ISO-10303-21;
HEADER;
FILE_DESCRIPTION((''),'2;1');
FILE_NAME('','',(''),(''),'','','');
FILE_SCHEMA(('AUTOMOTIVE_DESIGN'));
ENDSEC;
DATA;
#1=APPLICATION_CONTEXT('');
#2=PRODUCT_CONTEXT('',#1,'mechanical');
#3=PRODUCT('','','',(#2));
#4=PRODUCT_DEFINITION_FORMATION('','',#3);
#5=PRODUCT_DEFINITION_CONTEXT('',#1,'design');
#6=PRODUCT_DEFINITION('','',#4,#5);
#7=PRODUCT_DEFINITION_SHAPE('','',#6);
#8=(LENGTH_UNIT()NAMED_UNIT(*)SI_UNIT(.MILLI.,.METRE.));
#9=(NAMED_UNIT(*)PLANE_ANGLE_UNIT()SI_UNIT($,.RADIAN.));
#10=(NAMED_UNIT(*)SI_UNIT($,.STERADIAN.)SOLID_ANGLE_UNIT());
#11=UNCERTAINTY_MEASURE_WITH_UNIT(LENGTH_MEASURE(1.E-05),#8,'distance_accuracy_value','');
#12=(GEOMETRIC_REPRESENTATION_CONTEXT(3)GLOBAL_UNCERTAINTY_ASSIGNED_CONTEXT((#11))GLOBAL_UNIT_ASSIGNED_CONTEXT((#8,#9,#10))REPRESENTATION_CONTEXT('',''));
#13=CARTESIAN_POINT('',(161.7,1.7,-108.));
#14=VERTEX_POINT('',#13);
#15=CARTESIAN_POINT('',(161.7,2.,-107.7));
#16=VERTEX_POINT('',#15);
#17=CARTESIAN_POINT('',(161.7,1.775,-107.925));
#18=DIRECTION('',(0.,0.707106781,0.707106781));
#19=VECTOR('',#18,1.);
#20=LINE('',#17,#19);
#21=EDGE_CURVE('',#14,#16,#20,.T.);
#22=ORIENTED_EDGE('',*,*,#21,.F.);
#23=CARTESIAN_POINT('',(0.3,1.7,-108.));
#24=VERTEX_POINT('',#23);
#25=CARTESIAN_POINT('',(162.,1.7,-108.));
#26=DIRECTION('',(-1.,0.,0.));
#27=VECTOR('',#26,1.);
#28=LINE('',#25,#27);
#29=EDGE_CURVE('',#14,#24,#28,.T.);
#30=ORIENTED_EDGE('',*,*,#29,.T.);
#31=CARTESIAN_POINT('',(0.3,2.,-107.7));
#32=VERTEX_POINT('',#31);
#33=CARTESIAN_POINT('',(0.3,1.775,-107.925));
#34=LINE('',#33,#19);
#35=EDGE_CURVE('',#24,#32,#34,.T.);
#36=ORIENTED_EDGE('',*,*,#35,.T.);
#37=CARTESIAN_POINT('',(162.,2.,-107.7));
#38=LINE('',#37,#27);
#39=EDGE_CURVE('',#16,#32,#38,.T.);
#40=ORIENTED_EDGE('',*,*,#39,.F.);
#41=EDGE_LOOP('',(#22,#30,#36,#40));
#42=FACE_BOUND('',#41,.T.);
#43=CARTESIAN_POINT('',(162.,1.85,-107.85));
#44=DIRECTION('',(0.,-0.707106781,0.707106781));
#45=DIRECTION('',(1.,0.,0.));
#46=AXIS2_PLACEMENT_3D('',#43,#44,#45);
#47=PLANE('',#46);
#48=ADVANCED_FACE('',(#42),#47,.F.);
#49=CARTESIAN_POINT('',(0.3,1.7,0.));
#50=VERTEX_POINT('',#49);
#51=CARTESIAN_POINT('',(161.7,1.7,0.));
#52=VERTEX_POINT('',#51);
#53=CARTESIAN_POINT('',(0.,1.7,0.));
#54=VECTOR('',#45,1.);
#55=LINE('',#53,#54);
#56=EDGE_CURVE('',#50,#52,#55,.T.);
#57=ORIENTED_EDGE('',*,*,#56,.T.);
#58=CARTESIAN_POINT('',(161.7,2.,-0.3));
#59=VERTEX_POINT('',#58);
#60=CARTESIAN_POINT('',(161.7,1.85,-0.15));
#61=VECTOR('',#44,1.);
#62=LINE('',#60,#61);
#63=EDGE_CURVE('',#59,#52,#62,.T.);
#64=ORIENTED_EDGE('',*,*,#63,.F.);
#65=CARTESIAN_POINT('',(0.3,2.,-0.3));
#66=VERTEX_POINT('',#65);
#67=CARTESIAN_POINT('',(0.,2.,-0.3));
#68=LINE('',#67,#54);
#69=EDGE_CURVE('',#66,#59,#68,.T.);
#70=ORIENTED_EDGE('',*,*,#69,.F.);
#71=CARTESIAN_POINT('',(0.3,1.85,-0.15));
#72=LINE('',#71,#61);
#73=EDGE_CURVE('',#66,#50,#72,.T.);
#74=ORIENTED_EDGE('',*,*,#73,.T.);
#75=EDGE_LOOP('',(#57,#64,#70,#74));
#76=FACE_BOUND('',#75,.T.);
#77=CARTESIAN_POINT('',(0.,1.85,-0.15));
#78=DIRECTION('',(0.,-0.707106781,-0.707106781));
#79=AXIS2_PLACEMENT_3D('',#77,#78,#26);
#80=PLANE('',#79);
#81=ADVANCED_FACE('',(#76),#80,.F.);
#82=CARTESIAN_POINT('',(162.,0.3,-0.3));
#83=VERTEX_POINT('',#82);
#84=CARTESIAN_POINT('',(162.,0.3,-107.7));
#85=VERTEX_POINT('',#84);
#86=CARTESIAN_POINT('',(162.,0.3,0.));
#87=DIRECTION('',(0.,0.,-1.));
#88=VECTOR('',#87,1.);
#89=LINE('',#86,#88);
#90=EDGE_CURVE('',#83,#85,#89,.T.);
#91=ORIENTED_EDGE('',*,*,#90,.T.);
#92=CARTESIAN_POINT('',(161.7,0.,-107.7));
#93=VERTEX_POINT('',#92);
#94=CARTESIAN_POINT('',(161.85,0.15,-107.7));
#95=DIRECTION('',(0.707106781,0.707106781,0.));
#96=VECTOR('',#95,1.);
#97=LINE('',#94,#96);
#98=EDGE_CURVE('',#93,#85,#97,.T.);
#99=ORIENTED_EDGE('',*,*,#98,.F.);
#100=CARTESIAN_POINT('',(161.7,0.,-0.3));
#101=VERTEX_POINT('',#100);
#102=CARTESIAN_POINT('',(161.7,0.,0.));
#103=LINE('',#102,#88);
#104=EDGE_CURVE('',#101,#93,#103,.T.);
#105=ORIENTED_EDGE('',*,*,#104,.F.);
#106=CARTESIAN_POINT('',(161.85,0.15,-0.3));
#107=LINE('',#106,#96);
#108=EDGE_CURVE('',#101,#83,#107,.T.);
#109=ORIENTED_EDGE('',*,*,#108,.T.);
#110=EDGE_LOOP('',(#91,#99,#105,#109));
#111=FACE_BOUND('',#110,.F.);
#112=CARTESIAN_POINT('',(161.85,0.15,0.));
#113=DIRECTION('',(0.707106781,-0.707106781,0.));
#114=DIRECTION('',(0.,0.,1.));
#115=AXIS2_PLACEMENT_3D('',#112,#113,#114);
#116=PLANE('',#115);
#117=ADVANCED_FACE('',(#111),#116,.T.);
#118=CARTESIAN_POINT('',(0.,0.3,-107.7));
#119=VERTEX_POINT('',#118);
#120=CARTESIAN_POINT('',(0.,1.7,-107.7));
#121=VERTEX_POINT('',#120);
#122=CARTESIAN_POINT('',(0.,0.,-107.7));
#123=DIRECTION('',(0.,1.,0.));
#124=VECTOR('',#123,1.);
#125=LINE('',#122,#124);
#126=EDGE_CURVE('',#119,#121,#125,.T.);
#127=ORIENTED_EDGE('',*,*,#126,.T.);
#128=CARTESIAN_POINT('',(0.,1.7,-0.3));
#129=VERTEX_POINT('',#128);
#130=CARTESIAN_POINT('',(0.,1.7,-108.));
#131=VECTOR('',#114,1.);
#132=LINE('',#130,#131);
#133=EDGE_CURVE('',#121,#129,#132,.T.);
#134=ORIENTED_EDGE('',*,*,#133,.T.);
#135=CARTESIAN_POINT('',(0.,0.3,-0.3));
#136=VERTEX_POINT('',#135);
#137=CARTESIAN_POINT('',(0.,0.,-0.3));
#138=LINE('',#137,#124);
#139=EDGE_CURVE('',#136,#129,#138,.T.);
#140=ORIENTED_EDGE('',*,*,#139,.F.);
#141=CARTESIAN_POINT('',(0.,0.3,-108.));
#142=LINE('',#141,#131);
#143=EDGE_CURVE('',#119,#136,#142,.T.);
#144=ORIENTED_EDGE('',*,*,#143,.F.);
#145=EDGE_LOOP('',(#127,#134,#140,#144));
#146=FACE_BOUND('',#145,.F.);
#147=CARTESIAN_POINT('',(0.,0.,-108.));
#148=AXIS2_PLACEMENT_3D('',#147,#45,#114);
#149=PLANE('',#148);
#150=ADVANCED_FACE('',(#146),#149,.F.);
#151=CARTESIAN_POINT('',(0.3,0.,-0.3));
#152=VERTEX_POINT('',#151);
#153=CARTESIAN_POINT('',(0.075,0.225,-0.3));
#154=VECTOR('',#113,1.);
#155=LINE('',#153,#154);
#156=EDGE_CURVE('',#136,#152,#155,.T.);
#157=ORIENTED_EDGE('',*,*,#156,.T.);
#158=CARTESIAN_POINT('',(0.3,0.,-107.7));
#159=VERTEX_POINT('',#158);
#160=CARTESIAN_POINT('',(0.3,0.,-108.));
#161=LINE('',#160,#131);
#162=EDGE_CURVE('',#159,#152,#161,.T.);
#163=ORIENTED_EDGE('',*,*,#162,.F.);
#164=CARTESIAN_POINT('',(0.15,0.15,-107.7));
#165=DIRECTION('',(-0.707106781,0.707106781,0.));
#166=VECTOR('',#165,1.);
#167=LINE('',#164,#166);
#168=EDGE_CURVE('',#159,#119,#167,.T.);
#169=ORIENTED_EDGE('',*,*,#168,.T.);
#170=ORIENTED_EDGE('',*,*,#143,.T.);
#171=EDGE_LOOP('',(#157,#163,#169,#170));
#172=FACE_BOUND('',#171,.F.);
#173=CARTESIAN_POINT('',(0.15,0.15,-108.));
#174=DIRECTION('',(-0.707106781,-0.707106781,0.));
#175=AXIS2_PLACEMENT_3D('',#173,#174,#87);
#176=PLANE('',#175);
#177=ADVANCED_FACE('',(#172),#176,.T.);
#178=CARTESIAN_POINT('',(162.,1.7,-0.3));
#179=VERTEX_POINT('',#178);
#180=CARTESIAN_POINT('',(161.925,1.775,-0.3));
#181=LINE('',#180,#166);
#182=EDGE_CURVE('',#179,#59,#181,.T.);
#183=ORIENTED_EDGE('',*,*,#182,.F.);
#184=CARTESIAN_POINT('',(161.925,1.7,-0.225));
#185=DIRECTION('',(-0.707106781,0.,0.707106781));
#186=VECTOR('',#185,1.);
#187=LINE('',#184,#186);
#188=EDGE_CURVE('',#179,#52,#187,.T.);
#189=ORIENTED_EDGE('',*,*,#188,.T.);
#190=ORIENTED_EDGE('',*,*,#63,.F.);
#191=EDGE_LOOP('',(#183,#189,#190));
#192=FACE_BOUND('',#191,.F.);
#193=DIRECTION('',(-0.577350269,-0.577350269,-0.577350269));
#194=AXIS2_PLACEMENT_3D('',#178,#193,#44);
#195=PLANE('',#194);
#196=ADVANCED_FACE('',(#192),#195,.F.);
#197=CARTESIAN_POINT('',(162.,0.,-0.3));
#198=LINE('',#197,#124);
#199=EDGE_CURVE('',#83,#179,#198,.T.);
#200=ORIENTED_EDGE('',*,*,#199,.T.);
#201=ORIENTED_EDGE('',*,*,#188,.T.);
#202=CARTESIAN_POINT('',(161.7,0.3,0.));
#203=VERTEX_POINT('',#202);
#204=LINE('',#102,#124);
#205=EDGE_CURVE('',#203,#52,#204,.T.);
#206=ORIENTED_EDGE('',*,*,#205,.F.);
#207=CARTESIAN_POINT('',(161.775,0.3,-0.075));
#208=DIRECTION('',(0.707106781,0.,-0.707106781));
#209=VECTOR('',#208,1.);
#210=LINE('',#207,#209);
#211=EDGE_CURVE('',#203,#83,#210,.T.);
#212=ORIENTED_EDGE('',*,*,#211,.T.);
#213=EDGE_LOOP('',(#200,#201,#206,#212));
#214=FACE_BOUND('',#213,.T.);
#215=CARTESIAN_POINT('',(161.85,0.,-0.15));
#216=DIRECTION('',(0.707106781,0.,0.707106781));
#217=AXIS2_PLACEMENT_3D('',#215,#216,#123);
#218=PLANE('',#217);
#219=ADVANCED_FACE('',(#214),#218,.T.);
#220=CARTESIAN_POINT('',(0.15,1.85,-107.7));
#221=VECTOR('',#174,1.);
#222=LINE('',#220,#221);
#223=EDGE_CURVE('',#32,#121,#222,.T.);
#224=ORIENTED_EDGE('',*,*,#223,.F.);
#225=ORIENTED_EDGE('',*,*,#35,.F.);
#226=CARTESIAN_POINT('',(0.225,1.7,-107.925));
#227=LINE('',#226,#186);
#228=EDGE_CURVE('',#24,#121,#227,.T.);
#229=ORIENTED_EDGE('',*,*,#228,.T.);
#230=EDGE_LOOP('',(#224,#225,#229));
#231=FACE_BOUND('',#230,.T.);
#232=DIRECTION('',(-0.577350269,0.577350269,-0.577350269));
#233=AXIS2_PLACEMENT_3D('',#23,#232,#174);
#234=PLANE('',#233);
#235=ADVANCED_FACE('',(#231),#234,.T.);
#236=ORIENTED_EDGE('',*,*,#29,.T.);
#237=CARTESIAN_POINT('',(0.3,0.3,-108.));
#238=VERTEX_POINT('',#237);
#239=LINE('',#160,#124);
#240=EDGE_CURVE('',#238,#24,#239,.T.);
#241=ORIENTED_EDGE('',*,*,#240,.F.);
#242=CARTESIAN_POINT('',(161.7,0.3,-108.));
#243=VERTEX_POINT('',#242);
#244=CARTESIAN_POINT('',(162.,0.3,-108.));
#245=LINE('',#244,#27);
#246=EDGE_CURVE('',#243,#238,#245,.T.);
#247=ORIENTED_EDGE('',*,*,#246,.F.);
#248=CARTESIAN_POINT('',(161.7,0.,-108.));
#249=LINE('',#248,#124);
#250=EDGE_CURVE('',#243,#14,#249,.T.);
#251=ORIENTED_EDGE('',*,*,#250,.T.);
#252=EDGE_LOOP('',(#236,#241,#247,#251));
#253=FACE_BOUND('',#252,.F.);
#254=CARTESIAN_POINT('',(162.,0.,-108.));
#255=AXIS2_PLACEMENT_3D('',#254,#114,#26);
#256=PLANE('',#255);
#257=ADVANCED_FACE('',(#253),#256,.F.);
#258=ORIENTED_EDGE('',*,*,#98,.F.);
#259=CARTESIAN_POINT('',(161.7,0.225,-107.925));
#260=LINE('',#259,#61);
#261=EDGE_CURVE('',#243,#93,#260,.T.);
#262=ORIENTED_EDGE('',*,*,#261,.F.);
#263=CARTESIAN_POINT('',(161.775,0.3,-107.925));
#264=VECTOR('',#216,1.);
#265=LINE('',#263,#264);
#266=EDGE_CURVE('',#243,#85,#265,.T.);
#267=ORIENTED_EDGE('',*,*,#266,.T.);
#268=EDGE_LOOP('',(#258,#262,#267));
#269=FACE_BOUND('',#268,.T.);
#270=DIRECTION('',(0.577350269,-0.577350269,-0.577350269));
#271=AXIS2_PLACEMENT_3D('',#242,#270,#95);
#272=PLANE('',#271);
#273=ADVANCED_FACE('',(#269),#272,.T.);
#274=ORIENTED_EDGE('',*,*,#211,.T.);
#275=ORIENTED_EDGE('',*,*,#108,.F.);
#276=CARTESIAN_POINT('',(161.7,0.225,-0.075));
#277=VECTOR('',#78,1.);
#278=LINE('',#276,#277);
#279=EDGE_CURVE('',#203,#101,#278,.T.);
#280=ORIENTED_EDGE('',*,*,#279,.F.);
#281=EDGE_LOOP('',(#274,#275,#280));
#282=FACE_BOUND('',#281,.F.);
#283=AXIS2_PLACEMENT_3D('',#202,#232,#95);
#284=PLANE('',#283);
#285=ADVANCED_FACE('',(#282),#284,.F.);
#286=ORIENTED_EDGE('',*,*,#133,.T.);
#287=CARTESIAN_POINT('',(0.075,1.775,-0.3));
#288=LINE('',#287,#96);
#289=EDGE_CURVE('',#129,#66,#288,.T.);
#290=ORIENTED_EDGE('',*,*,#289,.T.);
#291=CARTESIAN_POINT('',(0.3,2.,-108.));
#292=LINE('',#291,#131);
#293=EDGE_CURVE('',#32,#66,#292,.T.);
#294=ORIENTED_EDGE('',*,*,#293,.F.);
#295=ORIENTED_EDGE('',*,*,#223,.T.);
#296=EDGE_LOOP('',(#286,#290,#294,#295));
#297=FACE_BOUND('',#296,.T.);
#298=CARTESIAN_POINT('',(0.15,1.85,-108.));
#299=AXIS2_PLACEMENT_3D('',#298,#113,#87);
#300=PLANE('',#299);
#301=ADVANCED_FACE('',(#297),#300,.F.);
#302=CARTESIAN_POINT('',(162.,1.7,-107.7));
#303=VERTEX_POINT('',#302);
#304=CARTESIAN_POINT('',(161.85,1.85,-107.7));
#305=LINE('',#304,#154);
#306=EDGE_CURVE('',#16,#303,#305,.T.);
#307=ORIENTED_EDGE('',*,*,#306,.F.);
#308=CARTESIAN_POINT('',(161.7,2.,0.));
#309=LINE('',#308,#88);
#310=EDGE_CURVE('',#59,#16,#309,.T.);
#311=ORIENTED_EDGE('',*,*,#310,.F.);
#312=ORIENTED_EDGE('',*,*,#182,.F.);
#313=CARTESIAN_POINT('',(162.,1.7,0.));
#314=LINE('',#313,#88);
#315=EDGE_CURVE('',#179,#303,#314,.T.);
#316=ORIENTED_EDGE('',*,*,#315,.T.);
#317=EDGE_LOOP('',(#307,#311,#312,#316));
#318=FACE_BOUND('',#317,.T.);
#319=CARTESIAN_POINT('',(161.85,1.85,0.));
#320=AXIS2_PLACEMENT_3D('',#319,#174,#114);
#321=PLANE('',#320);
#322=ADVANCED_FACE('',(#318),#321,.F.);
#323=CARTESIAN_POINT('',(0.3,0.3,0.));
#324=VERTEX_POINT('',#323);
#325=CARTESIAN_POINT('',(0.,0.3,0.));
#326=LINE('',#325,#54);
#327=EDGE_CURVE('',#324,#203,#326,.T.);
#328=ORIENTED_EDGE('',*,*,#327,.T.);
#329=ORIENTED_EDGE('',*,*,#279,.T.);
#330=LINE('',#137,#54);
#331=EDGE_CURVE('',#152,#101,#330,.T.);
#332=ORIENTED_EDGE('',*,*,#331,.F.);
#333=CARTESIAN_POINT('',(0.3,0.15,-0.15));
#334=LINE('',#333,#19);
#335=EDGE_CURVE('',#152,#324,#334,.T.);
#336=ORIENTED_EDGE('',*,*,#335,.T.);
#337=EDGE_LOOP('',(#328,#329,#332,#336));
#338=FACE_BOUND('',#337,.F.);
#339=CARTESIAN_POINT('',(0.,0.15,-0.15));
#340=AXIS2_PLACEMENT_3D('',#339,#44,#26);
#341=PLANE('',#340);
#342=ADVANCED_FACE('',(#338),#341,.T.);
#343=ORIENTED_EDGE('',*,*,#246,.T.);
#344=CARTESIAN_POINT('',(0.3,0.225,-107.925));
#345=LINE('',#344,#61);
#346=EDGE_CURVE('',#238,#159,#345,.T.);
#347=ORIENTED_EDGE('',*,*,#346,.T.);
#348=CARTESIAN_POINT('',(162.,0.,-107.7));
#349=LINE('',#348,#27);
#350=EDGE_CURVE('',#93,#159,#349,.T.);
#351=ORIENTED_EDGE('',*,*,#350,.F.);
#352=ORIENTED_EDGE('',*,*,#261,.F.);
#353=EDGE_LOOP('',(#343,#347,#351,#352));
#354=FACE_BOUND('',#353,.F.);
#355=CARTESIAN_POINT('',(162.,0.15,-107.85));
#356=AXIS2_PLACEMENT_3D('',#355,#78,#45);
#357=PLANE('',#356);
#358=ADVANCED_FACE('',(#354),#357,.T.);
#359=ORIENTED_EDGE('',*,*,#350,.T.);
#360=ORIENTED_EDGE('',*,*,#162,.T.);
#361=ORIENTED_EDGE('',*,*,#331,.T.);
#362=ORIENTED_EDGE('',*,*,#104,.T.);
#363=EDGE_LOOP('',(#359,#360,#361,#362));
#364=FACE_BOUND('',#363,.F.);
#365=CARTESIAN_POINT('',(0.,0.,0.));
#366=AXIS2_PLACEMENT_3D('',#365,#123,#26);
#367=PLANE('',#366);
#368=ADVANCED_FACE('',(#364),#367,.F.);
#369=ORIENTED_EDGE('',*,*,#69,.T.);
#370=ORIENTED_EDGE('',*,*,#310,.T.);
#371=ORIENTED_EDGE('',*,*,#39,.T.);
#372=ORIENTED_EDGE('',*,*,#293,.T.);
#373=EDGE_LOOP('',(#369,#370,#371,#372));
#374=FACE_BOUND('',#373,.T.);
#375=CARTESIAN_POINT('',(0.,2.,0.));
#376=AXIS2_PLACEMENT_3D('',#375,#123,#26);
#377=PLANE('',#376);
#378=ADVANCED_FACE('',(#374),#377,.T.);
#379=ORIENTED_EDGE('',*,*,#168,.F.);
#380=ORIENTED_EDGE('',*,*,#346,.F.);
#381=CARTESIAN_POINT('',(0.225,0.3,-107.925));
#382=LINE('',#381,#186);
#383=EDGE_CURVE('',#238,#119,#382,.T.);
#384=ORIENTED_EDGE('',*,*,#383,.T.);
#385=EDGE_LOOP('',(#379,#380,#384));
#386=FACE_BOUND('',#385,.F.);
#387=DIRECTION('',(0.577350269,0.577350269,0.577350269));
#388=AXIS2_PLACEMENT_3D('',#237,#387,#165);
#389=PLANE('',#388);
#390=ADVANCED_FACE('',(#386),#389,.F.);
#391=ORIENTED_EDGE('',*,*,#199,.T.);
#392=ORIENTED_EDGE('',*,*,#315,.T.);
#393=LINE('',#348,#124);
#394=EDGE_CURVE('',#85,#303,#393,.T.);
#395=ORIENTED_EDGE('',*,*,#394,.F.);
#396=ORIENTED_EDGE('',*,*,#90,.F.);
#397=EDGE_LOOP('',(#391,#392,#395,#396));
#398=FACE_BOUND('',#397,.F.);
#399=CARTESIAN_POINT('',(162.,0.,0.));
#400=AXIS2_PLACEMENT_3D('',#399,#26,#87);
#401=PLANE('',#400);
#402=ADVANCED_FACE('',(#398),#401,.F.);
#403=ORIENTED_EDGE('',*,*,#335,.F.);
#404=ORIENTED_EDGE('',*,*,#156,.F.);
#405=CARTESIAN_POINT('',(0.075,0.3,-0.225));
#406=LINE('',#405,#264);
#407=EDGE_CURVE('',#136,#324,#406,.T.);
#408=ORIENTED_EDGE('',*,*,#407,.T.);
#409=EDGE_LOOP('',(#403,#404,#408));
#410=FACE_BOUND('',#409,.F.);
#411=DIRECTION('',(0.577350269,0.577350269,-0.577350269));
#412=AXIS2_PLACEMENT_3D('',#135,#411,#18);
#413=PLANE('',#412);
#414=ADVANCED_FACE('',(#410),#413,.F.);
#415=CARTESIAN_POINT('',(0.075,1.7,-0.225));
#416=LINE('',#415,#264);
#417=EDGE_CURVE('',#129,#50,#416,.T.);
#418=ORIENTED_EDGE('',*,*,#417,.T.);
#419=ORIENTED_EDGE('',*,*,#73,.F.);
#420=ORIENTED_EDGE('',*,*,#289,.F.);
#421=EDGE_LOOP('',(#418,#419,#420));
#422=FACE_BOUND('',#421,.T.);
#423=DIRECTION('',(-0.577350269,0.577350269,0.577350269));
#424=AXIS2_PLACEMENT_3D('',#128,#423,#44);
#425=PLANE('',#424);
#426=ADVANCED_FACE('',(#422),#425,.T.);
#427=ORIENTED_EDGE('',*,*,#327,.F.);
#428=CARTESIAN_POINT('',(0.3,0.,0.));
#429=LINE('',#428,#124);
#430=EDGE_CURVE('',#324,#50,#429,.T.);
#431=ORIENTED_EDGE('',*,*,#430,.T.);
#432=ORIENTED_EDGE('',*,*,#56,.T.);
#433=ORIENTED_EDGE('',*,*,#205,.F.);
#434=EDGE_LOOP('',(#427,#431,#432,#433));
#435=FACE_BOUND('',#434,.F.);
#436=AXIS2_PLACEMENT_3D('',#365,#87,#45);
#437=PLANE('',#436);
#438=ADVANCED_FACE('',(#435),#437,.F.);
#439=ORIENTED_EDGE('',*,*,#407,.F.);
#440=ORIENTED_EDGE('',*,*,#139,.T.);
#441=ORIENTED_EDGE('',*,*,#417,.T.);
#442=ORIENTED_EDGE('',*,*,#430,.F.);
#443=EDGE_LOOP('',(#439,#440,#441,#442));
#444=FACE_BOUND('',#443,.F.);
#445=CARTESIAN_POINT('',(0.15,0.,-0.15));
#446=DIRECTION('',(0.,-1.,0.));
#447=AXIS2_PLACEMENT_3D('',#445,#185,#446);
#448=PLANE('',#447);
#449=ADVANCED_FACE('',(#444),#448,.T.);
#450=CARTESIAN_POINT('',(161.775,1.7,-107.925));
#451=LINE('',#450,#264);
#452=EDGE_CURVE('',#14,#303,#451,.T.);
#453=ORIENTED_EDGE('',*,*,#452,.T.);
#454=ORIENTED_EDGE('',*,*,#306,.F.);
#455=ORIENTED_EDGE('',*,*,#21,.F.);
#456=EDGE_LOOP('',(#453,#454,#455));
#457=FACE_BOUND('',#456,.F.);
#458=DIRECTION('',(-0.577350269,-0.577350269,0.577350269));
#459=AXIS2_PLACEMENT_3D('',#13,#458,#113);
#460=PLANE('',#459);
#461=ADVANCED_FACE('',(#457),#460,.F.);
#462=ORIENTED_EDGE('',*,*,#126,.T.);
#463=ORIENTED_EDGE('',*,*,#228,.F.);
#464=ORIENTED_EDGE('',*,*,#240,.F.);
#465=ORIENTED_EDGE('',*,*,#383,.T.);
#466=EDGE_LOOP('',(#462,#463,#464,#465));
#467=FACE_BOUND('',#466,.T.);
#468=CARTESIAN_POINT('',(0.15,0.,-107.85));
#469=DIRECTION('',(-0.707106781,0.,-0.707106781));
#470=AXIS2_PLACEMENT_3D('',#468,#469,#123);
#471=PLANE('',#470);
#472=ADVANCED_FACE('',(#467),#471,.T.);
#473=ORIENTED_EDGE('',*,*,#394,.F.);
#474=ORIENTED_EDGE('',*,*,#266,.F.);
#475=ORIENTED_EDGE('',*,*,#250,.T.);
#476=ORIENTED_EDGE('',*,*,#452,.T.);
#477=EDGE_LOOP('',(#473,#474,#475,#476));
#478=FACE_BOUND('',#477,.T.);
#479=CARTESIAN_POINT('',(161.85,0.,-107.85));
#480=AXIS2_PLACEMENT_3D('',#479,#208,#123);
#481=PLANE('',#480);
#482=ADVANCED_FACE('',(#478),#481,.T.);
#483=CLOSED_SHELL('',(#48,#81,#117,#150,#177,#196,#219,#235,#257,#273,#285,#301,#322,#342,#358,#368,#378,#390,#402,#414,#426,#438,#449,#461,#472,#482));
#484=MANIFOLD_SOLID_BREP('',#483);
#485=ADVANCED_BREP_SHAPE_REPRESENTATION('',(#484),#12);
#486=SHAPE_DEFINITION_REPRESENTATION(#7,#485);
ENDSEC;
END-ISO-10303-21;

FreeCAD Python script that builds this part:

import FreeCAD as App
import Part
import Sketcher
Q = App.Units.Quantity


def add_polygon(sketch, points):
    """Adds a closed chain of lines whose ends are joined by coincident constraints."""
    first, n = sketch.GeometryCount, len(points)
    for a, b in zip(points, points[1:] + points[:1]):
        sketch.addGeometry(Part.LineSegment(App.Vector(*a, 0), App.Vector(*b, 0)), False)
    for i in range(n):
        sketch.addConstraint(Sketcher.Constraint("Coincident", first + i, 2, first + (i + 1) % n, 1))

doc = App.newDocument("Part")
body = doc.addObject("PartDesign::Body", "Body")

# Sketch on XZ plane
sketch1 = body.newObject("Sketcher::SketchObject", "Sketch")
sketch1.AttachmentSupport = (doc.getObject("XZ_Plane"), [""])
sketch1.MapMode = "FlatFace"
add_polygon(sketch1, [(0, -108), (0, 0), (162, 0), (162, -108)])  # lines 0-3
sketch1.addConstraint(Sketcher.Constraint("Vertical", 0))
sketch1.addConstraint(Sketcher.Constraint("Horizontal", 1))
sketch1.addConstraint(Sketcher.Constraint("Vertical", 2))
sketch1.addConstraint(Sketcher.Constraint("Horizontal", 3))
sketch1.addConstraint(Sketcher.Constraint("Coincident", 0, 2, -1, 1))
sketch1.addConstraint(Sketcher.Constraint("DistanceX", 1, 1, 1, 2, Q("162 mm")))
sketch1.addConstraint(Sketcher.Constraint("DistanceY", 0, 1, 0, 2, Q("108 mm")))
pad1 = body.newObject("PartDesign::Pad", "Pad")
pad1.Profile = sketch1
pad1.Length = 2
pad1.Reversed = True
doc.recompute()

chamfer = body.newObject("PartDesign::Chamfer", "Chamfer")
chamfer.Base = (pad1, ["Edge1"])
chamfer.UseAllEdges = True
chamfer.Size = 0.3

doc.recompute()
